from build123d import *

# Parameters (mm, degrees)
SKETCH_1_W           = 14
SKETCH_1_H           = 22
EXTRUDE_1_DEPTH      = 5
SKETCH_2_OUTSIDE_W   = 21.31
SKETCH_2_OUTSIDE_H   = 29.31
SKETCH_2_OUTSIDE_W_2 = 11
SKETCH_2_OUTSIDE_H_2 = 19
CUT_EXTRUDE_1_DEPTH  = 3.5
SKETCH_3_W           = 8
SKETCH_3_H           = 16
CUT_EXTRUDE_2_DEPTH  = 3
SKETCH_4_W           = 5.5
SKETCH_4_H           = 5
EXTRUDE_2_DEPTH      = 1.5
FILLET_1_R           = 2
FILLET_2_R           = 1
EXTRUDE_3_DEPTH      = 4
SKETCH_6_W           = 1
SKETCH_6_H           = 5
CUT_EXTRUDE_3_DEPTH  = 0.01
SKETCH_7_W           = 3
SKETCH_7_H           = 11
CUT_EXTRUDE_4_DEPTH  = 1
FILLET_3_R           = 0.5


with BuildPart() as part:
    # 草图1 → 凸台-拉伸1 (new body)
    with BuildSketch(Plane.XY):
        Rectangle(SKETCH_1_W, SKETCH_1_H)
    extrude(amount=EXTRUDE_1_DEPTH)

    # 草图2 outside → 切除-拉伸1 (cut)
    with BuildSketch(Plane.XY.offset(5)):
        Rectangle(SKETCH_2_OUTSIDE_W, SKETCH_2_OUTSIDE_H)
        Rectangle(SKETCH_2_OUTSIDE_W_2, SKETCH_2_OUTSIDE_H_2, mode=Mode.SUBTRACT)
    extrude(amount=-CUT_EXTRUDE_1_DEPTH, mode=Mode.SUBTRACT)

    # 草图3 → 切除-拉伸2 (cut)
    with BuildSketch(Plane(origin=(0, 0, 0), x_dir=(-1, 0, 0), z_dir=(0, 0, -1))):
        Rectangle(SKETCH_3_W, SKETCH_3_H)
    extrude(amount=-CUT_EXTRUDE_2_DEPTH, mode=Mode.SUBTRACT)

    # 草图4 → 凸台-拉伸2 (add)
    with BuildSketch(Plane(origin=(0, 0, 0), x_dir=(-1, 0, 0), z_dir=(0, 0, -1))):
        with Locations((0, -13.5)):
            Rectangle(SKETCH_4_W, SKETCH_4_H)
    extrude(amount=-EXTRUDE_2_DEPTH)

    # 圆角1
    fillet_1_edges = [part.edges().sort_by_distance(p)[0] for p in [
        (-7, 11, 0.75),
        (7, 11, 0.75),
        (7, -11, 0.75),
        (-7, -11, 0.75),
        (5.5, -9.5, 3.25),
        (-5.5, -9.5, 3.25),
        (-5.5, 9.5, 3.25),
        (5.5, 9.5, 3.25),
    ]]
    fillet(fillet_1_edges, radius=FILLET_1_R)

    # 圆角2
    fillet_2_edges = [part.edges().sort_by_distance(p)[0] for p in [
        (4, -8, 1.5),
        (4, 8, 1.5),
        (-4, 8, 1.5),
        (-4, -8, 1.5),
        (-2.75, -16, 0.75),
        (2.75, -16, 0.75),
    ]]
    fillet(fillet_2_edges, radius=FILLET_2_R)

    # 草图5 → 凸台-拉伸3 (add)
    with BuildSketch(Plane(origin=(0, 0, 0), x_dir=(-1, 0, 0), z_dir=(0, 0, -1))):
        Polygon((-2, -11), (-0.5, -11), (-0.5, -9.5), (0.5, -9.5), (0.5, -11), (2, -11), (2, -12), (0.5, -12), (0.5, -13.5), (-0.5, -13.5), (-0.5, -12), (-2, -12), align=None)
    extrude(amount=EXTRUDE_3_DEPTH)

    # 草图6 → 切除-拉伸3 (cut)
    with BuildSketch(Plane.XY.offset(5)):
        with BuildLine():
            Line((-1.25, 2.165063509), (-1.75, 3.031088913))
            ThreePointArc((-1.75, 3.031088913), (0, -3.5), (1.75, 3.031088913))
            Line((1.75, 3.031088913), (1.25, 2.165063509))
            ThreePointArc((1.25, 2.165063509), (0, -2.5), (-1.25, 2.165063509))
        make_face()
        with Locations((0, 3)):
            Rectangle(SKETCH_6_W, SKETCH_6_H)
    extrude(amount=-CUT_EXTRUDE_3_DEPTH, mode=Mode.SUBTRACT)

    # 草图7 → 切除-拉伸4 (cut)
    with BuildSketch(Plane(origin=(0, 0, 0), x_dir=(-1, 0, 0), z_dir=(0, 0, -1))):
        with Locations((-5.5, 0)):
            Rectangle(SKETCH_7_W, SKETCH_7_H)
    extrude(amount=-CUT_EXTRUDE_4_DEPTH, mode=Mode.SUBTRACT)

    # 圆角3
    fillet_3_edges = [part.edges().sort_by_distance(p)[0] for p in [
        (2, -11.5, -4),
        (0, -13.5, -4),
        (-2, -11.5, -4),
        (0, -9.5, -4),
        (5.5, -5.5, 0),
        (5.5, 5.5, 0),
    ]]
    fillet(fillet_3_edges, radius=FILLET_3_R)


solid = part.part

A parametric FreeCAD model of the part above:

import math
import FreeCAD as App
import Part
import Sketcher
Q = App.Units.Quantity


def edges_at(feature, points):
    """Names of the edges that pass closest to the given points."""
    edges = feature.Shape.Edges
    near = lambda p: min(range(len(edges)), key=lambda i: edges[i].distToShape(Part.Vertex(*p))[0])
    return sorted({f"Edge{near(p) + 1}" for p in points})


def add_polygon(sketch, points):
    """Adds a closed chain of lines whose ends are joined by coincident constraints."""
    first, n = sketch.GeometryCount, len(points)
    for a, b in zip(points, points[1:] + points[:1]):
        sketch.addGeometry(Part.LineSegment(App.Vector(*a, 0), App.Vector(*b, 0)), False)
    for i in range(n):
        sketch.addConstraint(Sketcher.Constraint("Coincident", first + i, 2, first + (i + 1) % n, 1))

doc = App.newDocument("Part")
params = doc.addObject("Spreadsheet::Sheet", "Params")
for row, (alias, value) in enumerate([
    ("sketch1_width", "14 mm"),
    ("sketch1_height", "22 mm"),
    ("pad1_length", "5 mm"),
    ("sketch2_width", "11 mm"),
    ("sketch2_height", "19 mm"),
    ("sketch2_width2", "21.31 mm"),
    ("sketch2_height2", "29.31 mm"),
    ("pocket1_length", "3.5 mm"),
    ("sketch3_width", "8 mm"),
    ("sketch3_height", "16 mm"),
    ("pocket2_length", "3 mm"),
    ("sketch4_height", "5 mm"),
    ("sketch4_width", "5.5 mm"),
    ("pad2_length", "1.5 mm"),
    ("fillet_radius", "2 mm"),
    ("fillet2_radius", "1 mm"),
    ("sketch5_width", "1 mm"),
    ("sketch5_width2", "1.5 mm"),
    ("pad3_length", "4 mm"),
    ("sketch6_radius", "3.5 mm"),
    ("sketch6_radius2", "2.5 mm"),
    ("sketch6_width", "1 mm"),
    ("sketch6_height", "5 mm"),
    ("pocket3_length", "0.01 mm"),
    ("sketch7_width", "3 mm"),
    ("sketch7_height", "11 mm"),
    ("pocket4_length", "1 mm"),
    ("fillet3_radius", "0.5 mm"),
], start=1):
    params.set(f"A{row}", alias)
    params.set(f"B{row}", "=" + value)
    params.setAlias(f"B{row}", alias)

body = doc.addObject("PartDesign::Body", "Body")

# Sketch on XY plane
sketch1 = doc.addObject("Sketcher::SketchObject", "Sketch")
body.addObject(sketch1)
sketch1.AttachmentSupport = (doc.XY_Plane, [""])
sketch1.MapMode = "FlatFace"
add_polygon(sketch1, [(-7, 11), (-7, -11), (7, -11), (7, 11)])  # lines 0-3
sketch1.addConstraint([
    Sketcher.Constraint("Vertical", 0),
    Sketcher.Constraint("Horizontal", 1),
    Sketcher.Constraint("Vertical", 2),
    Sketcher.Constraint("Horizontal", 3),
    Sketcher.Constraint("Symmetric", 0, 2, 2, 2, -1, 1),
    Sketcher.Constraint("DistanceX", 1, 1, 1, 2, Q("14 mm")),
    Sketcher.Constraint("DistanceY", 0, 2, 0, 1, Q("22 mm")),
])
sketch1.setExpression("Constraints[9]", "Params.sketch1_width")
sketch1.setExpression("Constraints[10]", "Params.sketch1_height")
pad1 = doc.addObject("PartDesign::Pad", "Pad")
body.addObject(pad1)
pad1.Profile = sketch1
pad1.setExpression("Length", "Params.pad1_length")

# Sketch on XY plane
sketch2 = doc.addObject("Sketcher::SketchObject", "Sketch001")
body.addObject(sketch2)
sketch2.AttachmentSupport = (doc.XY_Plane, [""])
sketch2.MapMode = "FlatFace"
sketch2.AttachmentOffset = App.Placement(App.Vector(0, 0, 5), App.Rotation())
add_polygon(sketch2, [(-10.655, 14.655), (-10.655, -14.655), (10.655, -14.655), (10.655, 14.655)])  # lines 0-3
add_polygon(sketch2, [(5.5, -9.5), (-5.5, -9.5), (-5.5, 9.5), (5.5, 9.5)])  # lines 4-7
sketch2.addConstraint([
    Sketcher.Constraint("Vertical", 0),
    Sketcher.Constraint("Horizontal", 1),
    Sketcher.Constraint("Vertical", 2),
    Sketcher.Constraint("Horizontal", 3),
    Sketcher.Constraint("Horizontal", 4),
    Sketcher.Constraint("Vertical", 5),
    Sketcher.Constraint("Horizontal", 6),
    Sketcher.Constraint("Vertical", 7),
    Sketcher.Constraint("Symmetric", 0, 2, 2, 2, -1, 1),
    Sketcher.Constraint("Symmetric", 4, 2, 6, 2, -1, 1),
    Sketcher.Constraint("DistanceX", 4, 2, 4, 1, Q("11 mm")),
    Sketcher.Constraint("DistanceY", 5, 1, 5, 2, Q("19 mm")),
    Sketcher.Constraint("DistanceX", 1, 1, 1, 2, Q("21.31 mm")),
    Sketcher.Constraint("DistanceY", 0, 2, 0, 1, Q("29.31 mm")),
])
sketch2.setExpression("Constraints[18]", "Params.sketch2_width")
sketch2.setExpression("Constraints[19]", "Params.sketch2_height")
sketch2.setExpression("Constraints[20]", "Params.sketch2_width2")
sketch2.setExpression("Constraints[21]", "Params.sketch2_height2")
pocket1 = doc.addObject("PartDesign::Pocket", "Pocket")
body.addObject(pocket1)
pocket1.Profile = sketch2
pocket1.setExpression("Length", "Params.pocket1_length")

# Sketch on XY plane
sketch3 = doc.addObject("Sketcher::SketchObject", "Sketch002")
body.addObject(sketch3)
sketch3.AttachmentSupport = (doc.XY_Plane, [""])
sketch3.MapMode = "FlatFace"
add_polygon(sketch3, [(4, 8), (4, -8), (-4, -8), (-4, 8)])  # lines 0-3
sketch3.addConstraint([
    Sketcher.Constraint("Vertical", 0),
    Sketcher.Constraint("Horizontal", 1),
    Sketcher.Constraint("Vertical", 2),
    Sketcher.Constraint("Horizontal", 3),
    Sketcher.Constraint("Symmetric", 0, 2, 2, 2, -1, 1),
    Sketcher.Constraint("DistanceX", 1, 2, 1, 1, Q("8 mm")),
    Sketcher.Constraint("DistanceY", 0, 2, 0, 1, Q("16 mm")),
])
sketch3.setExpression("Constraints[9]", "Params.sketch3_width")
sketch3.setExpression("Constraints[10]", "Params.sketch3_height")
pocket2 = doc.addObject("PartDesign::Pocket", "Pocket001")
body.addObject(pocket2)
pocket2.Profile = sketch3
pocket2.setExpression("Length", "Params.pocket2_length")
pocket2.Reversed = True

# Sketch on XY plane
sketch4 = doc.addObject("Sketcher::SketchObject", "Sketch003")
body.addObject(sketch4)
sketch4.AttachmentSupport = (doc.XY_Plane, [""])
sketch4.MapMode = "FlatFace"
add_polygon(sketch4, [(2.75, -11), (2.75, -16), (-2.75, -16), (-2.75, -11)])  # lines 0-3
sketch4.addConstraint([
    Sketcher.Constraint("Vertical", 0),
    Sketcher.Constraint("Horizontal", 1),
    Sketcher.Constraint("Vertical", 2),
    Sketcher.Constraint("Horizontal", 3),
    Sketcher.Constraint("DistanceY", 0, 2, 0, 1, Q("5 mm")),
    Sketcher.Constraint("DistanceX", 1, 2, 1, 1, Q("5.5 mm")),
    Sketcher.Constraint("DistanceY", 0, 2, -1, 1, Q("16 mm")),
    Sketcher.Constraint("DistanceX", -1, 1, 0, 2, Q("2.75 mm")),
])
sketch4.setExpression("Constraints[8]", "Params.sketch4_height")
sketch4.setExpression("Constraints[9]", "Params.sketch4_width")
pad2 = doc.addObject("PartDesign::Pad", "Pad001")
body.addObject(pad2)
pad2.Profile = sketch4
pad2.setExpression("Length", "Params.pad2_length")
doc.recompute()

fillet = doc.addObject("PartDesign::Fillet", "Fillet")
body.addObject(fillet)
fillet.Base = (pad2, edges_at(pad2, [
    (-7, 11, 0.75),
    (7, 11, 0.75),
    (7, -11, 0.75),
    (-7, -11, 0.75),
    (5.5, -9.5, 3.25),
    (-5.5, -9.5, 3.25),
    (-5.5, 9.5, 3.25),
    (5.5, 9.5, 3.25),
]))
fillet.setExpression("Radius", "Params.fillet_radius")
doc.recompute()

fillet2 = doc.addObject("PartDesign::Fillet", "Fillet001")
body.addObject(fillet2)
fillet2.Base = (fillet, edges_at(fillet, [
    (4, -8, 1.5),
    (4, 8, 1.5),
    (-4, 8, 1.5),
    (-4, -8, 1.5),
    (-2.75, -16, 0.75),
    (2.75, -16, 0.75),
]))
fillet2.setExpression("Radius", "Params.fillet2_radius")

# Sketch on XY plane
sketch5 = doc.addObject("Sketcher::SketchObject", "Sketch004")
body.addObject(sketch5)
sketch5.AttachmentSupport = (doc.XY_Plane, [""])
sketch5.MapMode = "FlatFace"
add_polygon(sketch5, [(0.5, -11), (2, -11), (2, -12), (0.5, -12), (0.5, -13.5), (-0.5, -13.5), (-0.5, -12), (-2, -12), (-2, -11), (-0.5, -11), (-0.5, -9.5), (0.5, -9.5)])  # lines 0-11
sketch5.addConstraint([
    Sketcher.Constraint("Horizontal", 0),
    Sketcher.Constraint("Vertical", 1),
    Sketcher.Constraint("Horizontal", 2),
    Sketcher.Constraint("Vertical", 3),
    Sketcher.Constraint("Horizontal", 4),
    Sketcher.Constraint("Vertical", 5),
    Sketcher.Constraint("Horizontal", 6),
    Sketcher.Constraint("Vertical", 7),
    Sketcher.Constraint("Horizontal", 8),
    Sketcher.Constraint("Vertical", 9),
    Sketcher.Constraint("Horizontal", 10),
    Sketcher.Constraint("Vertical", 11),
    Sketcher.Constraint("Symmetric", 2, 2, 5, 2, -2),
    Sketcher.Constraint("Symmetric", 0, 2, 7, 2, -2),
    Sketcher.Constraint("Vertical", 5, 2, 8, 2),
    Sketcher.Constraint("Vertical", 3, 2, 10, 2),
    Sketcher.Constraint("Equal", 10, 1),
    Sketcher.Constraint("Equal", 8, 3),
    Sketcher.Constraint("Equal", 5, 9),
    Sketcher.Constraint("DistanceX", 4, 2, 4, 1, Q("1 mm")),
    Sketcher.Constraint("DistanceX", 0, 1, 0, 2, Q("1.5 mm")),
    Sketcher.Constraint("DistanceY", 0, 2, -1, 1, Q("11 mm")),
])
sketch5.setExpression("Constraints[31]", "Params.sketch5_width")
sketch5.setExpression("Constraints[32]", "Params.sketch5_width2")
pad3 = doc.addObject("PartDesign::Pad", "Pad002")
body.addObject(pad3)
pad3.Profile = sketch5
pad3.setExpression("Length", "Params.pad3_length")
pad3.Reversed = True

# Sketch on XY plane
sketch6 = doc.addObject("Sketcher::SketchObject", "Sketch005")
body.addObject(sketch6)
sketch6.AttachmentSupport = (doc.XY_Plane, [""])
sketch6.MapMode = "FlatFace"
sketch6.AttachmentOffset = App.Placement(App.Vector(0, 0, 5), App.Rotation())
sketch6.addGeometry(Part.LineSegment(App.Vector(-1.25, 2.165064, 0), App.Vector(-1.75, 3.031089, 0)), False)  # 0
sketch6.addGeometry(Part.ArcOfCircle(Part.Circle(App.Vector(0, 0, 0), App.Vector(0, 0, 1), 3.5), math.radians(120), math.radians(420)), False)  # 1
sketch6.addGeometry(Part.LineSegment(App.Vector(1.75, 3.031089, 0), App.Vector(1.25, 2.165064, 0)), False)  # 2
sketch6.addGeometry(Part.ArcOfCircle(Part.Circle(App.Vector(0, 0, 0), App.Vector(0, 0, 1), 2.5), math.radians(120), math.radians(420)), False)  # 3
add_polygon(sketch6, [(-0.5, 5.5), (-0.5, 0.5), (0.5, 0.5), (0.5, 5.5)])  # lines 4-7
sketch6.addConstraint([
    Sketcher.Constraint("Coincident", 0, 2, 1, 1),
    Sketcher.Constraint("Coincident", 1, 2, 2, 1),
    Sketcher.Constraint("Coincident", 2, 2, 3, 2),
    Sketcher.Constraint("Coincident", 3, 1, 0, 1),
    Sketcher.Constraint("Vertical", 4),
    Sketcher.Constraint("Horizontal", 5),
    Sketcher.Constraint("Vertical", 6),
    Sketcher.Constraint("Horizontal", 7),
    Sketcher.Constraint("Coincident", 1, 3, -1, 1),
    Sketcher.Constraint("Coincident", 3, 3, -1, 1),
    Sketcher.Constraint("Horizontal", 0, 2, 1, 2),
    Sketcher.Constraint("Horizontal", 2, 2, 3, 1),
    Sketcher.Constraint("Radius", 1, Q("3.5 mm")),
    Sketcher.Constraint("Radius", 3, Q("2.5 mm")),
    Sketcher.Constraint("DistanceX", 5, 1, 5, 2, Q("1 mm")),
    Sketcher.Constraint("DistanceY", 4, 2, 4, 1, Q("5 mm")),
    Sketcher.Constraint("Angle", 0, Q("120 deg")),
    Sketcher.Constraint("DistanceX", 0, 2, 2, 2, Q("3 mm")),
    Sketcher.Constraint("DistanceX", 4, 2, -1, 1, Q("0.5 mm")),
    Sketcher.Constraint("DistanceY", -1, 1, 4, 2, Q("0.5 mm")),
])
sketch6.setExpression("Constraints[16]", "Params.sketch6_radius")
sketch6.setExpression("Constraints[17]", "Params.sketch6_radius2")
sketch6.setExpression("Constraints[18]", "Params.sketch6_width")
sketch6.setExpression("Constraints[19]", "Params.sketch6_height")
pocket3 = doc.addObject("PartDesign::Pocket", "Pocket002")
body.addObject(pocket3)
pocket3.Profile = sketch6
pocket3.setExpression("Length", "Params.pocket3_length")

# Sketch on XY plane
sketch7 = doc.addObject("Sketcher::SketchObject", "Sketch006")
body.addObject(sketch7)
sketch7.AttachmentSupport = (doc.XY_Plane, [""])
sketch7.MapMode = "FlatFace"
add_polygon(sketch7, [(7, 5.5), (7, -5.5), (4, -5.5), (4, 5.5)])  # lines 0-3
sketch7.addConstraint([
    Sketcher.Constraint("Vertical", 0),
    Sketcher.Constraint("Horizontal", 1),
    Sketcher.Constraint("Vertical", 2),
    Sketcher.Constraint("Horizontal", 3),
    Sketcher.Constraint("DistanceX", 1, 2, 1, 1, Q("3 mm")),
    Sketcher.Constraint("DistanceY", 0, 2, 0, 1, Q("11 mm")),
    Sketcher.Constraint("DistanceX", -1, 1, 0, 2, Q("7 mm")),
    Sketcher.Constraint("DistanceY", 0, 2, -1, 1, Q("5.5 mm")),
])
sketch7.setExpression("Constraints[8]", "Params.sketch7_width")
sketch7.setExpression("Constraints[9]", "Params.sketch7_height")
pocket4 = doc.addObject("PartDesign::Pocket", "Pocket003")
body.addObject(pocket4)
pocket4.Profile = sketch7
pocket4.setExpression("Length", "Params.pocket4_length")
pocket4.Reversed = True
doc.recompute()

fillet3 = doc.addObject("PartDesign::Fillet", "Fillet002")
body.addObject(fillet3)
fillet3.Base = (pocket4, edges_at(pocket4, [
    (2, -11.5, -4),
    (0, -13.5, -4),
    (-2, -11.5, -4),
    (0, -9.5, -4),
    (5.5, -5.5, 0),
    (5.5, 5.5, 0),
]))
fillet3.setExpression("Radius", "Params.fillet3_radius")

doc.recompute()
